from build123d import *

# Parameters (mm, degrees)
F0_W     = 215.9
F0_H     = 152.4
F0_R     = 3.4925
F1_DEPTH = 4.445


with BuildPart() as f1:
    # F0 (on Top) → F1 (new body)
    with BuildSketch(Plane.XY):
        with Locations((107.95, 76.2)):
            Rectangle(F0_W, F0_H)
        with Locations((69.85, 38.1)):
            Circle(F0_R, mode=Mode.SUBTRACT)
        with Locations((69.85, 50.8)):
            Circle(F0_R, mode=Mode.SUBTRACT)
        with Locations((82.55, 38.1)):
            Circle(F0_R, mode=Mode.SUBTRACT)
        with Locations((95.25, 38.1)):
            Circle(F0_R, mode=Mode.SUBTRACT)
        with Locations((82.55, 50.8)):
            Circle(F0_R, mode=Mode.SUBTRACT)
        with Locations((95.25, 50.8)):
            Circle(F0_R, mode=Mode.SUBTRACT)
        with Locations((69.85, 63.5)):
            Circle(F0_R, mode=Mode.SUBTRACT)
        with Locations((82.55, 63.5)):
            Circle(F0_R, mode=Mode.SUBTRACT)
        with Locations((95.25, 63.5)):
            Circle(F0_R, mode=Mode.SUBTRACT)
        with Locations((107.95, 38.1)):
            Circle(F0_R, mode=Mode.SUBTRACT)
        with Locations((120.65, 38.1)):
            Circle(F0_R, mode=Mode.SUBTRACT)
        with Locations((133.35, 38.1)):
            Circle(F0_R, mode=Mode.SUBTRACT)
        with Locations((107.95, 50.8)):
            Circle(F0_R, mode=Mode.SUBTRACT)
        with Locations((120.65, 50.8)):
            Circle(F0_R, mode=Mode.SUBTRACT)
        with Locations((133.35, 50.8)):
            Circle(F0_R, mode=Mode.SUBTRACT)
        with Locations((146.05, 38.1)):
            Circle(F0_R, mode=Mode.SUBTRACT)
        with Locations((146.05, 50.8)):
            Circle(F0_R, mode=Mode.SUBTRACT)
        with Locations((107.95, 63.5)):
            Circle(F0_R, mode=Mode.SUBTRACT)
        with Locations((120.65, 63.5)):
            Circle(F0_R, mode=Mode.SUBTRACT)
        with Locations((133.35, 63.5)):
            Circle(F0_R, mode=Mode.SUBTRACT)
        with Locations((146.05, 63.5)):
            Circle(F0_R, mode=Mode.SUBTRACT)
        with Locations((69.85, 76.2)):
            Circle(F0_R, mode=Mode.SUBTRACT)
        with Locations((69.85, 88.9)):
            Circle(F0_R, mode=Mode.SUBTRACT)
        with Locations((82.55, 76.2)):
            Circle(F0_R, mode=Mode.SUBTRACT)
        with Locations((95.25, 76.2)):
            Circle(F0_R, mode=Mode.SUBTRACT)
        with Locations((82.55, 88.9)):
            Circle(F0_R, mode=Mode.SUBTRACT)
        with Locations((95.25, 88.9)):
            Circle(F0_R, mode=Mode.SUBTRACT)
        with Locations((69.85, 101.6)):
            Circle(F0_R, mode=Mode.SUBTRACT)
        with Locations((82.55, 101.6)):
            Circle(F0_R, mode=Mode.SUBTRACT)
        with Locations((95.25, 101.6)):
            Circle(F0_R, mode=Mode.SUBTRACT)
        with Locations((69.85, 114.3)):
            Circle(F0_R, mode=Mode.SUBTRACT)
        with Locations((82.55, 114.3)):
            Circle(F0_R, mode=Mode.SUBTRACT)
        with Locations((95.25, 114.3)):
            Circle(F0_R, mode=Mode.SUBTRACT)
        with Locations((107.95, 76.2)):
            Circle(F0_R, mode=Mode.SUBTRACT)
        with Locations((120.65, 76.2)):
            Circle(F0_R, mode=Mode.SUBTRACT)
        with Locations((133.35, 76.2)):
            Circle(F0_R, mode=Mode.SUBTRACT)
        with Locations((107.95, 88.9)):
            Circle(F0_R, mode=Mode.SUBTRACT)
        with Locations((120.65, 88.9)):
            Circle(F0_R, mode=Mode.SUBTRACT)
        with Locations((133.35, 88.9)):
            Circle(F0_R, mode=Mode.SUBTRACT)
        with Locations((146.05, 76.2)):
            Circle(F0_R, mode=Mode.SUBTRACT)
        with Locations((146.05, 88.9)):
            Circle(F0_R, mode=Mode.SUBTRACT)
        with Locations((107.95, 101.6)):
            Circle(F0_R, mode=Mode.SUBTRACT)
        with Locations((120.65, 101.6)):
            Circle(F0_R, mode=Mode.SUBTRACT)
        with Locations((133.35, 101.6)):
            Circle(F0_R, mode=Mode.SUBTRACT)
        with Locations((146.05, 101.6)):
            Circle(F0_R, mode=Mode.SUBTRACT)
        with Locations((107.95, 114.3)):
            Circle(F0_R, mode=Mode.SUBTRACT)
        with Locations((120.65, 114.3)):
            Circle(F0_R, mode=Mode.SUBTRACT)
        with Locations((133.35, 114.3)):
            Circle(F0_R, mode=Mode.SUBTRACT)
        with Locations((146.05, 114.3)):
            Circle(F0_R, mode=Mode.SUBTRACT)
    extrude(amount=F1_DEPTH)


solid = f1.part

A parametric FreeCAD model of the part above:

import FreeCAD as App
import Part
import Sketcher

V = App.Vector
Q = App.Units.Quantity


def add_polygon(sketch, points):
    """Adds a closed chain of lines whose ends are joined by coincident constraints."""
    first, n = sketch.GeometryCount, len(points)
    for a, b in zip(points, points[1:] + points[:1]):
        sketch.addGeometry(Part.LineSegment(App.Vector(*a, 0), App.Vector(*b, 0)), False)
    for i in range(n):
        sketch.addConstraint(Sketcher.Constraint("Coincident", first + i, 2, first + (i + 1) % n, 1))

doc = App.newDocument("Part")
params = doc.addObject("Spreadsheet::Sheet", "Params")
for row, (alias, value) in enumerate([
    ("sketch1_height", "6 in"),
    ("sketch1_diameter", "0.275 in"),
    ("sketch1_width", "8.5 in"),
    ("pad1_length", "0.175 in"),
], start=1):
    params.set(f"A{row}", alias)
    params.set(f"B{row}", "=" + value)
    params.setAlias(f"B{row}", alias)

body = doc.addObject("PartDesign::Body", "Body")

sketch1 = doc.addObject("Sketcher::SketchObject", "Sketch")
body.addObject(sketch1)
sketch1.AttachmentSupport = (doc.XY_Plane, [""])
sketch1.MapMode = "FlatFace"
add_polygon(sketch1, [(0, 152.4), (0, 0), (215.9, 0), (215.9, 152.4)])
sketch1.addGeometry(Part.Circle(V(69.8, 38.1, 0), V(0, 0, 1), 3.5), False)
sketch1.addGeometry(Part.Circle(V(82.5, 38.1, 0), V(0, 0, 1), 3.5), False)
sketch1.addGeometry(Part.Circle(V(69.8, 50.8, 0), V(0, 0, 1), 3.5), False)
sketch1.addGeometry(Part.Circle(V(82.5, 50.8, 0), V(0, 0, 1), 3.5), False)
sketch1.addGeometry(Part.Circle(V(95.2, 38.1, 0), V(0, 0, 1), 3.5), False)
sketch1.addGeometry(Part.Circle(V(95.2, 50.8, 0), V(0, 0, 1), 3.5), False)
sketch1.addGeometry(Part.Circle(V(69.8, 63.5, 0), V(0, 0, 1), 3.5), False)
sketch1.addGeometry(Part.Circle(V(82.5, 63.5, 0), V(0, 0, 1), 3.5), False)
sketch1.addGeometry(Part.Circle(V(95.2, 63.5, 0), V(0, 0, 1), 3.5), False)
sketch1.addGeometry(Part.Circle(V(108, 38.1, 0), V(0, 0, 1), 3.5), False)
sketch1.addGeometry(Part.Circle(V(120.7, 38.1, 0), V(0, 0, 1), 3.5), False)
sketch1.addGeometry(Part.Circle(V(108, 50.8, 0), V(0, 0, 1), 3.5), False)
sketch1.addGeometry(Part.Circle(V(120.7, 50.8, 0), V(0, 0, 1), 3.5), False)
sketch1.addGeometry(Part.Circle(V(133.3, 38.1, 0), V(0, 0, 1), 3.5), False)
sketch1.addGeometry(Part.Circle(V(146.1, 38.1, 0), V(0, 0, 1), 3.5), False)
sketch1.addGeometry(Part.Circle(V(133.3, 50.8, 0), V(0, 0, 1), 3.5), False)
sketch1.addGeometry(Part.Circle(V(146.1, 50.8, 0), V(0, 0, 1), 3.5), False)
sketch1.addGeometry(Part.Circle(V(108, 63.5, 0), V(0, 0, 1), 3.5), False)
sketch1.addGeometry(Part.Circle(V(120.7, 63.5, 0), V(0, 0, 1), 3.5), False)
sketch1.addGeometry(Part.Circle(V(133.3, 63.5, 0), V(0, 0, 1), 3.5), False)
sketch1.addGeometry(Part.Circle(V(146.1, 63.5, 0), V(0, 0, 1), 3.5), False)
sketch1.addGeometry(Part.Circle(V(69.8, 76.2, 0), V(0, 0, 1), 3.5), False)
sketch1.addGeometry(Part.Circle(V(82.5, 76.2, 0), V(0, 0, 1), 3.5), False)
sketch1.addGeometry(Part.Circle(V(69.8, 88.9, 0), V(0, 0, 1), 3.5), False)
sketch1.addGeometry(Part.Circle(V(82.5, 88.9, 0), V(0, 0, 1), 3.5), False)
sketch1.addGeometry(Part.Circle(V(95.2, 76.2, 0), V(0, 0, 1), 3.5), False)
sketch1.addGeometry(Part.Circle(V(95.2, 88.9, 0), V(0, 0, 1), 3.5), False)
sketch1.addGeometry(Part.Circle(V(69.8, 101.6, 0), V(0, 0, 1), 3.5), False)
sketch1.addGeometry(Part.Circle(V(82.5, 101.6, 0), V(0, 0, 1), 3.5), False)
sketch1.addGeometry(Part.Circle(V(69.8, 114.3, 0), V(0, 0, 1), 3.5), False)
sketch1.addGeometry(Part.Circle(V(82.5, 114.3, 0), V(0, 0, 1), 3.5), False)
sketch1.addGeometry(Part.Circle(V(95.2, 101.6, 0), V(0, 0, 1), 3.5), False)
sketch1.addGeometry(Part.Circle(V(95.2, 114.3, 0), V(0, 0, 1), 3.5), False)
sketch1.addGeometry(Part.Circle(V(108, 76.2, 0), V(0, 0, 1), 3.5), False)
sketch1.addGeometry(Part.Circle(V(120.7, 76.2, 0), V(0, 0, 1), 3.5), False)
sketch1.addGeometry(Part.Circle(V(108, 88.9, 0), V(0, 0, 1), 3.5), False)
sketch1.addGeometry(Part.Circle(V(120.7, 88.9, 0), V(0, 0, 1), 3.5), False)
sketch1.addGeometry(Part.Circle(V(133.3, 76.2, 0), V(0, 0, 1), 3.5), False)
sketch1.addGeometry(Part.Circle(V(146.1, 76.2, 0), V(0, 0, 1), 3.5), False)
sketch1.addGeometry(Part.Circle(V(133.3, 88.9, 0), V(0, 0, 1), 3.5), False)
sketch1.addGeometry(Part.Circle(V(146.1, 88.9, 0), V(0, 0, 1), 3.5), False)
sketch1.addGeometry(Part.Circle(V(108, 101.6, 0), V(0, 0, 1), 3.5), False)
sketch1.addGeometry(Part.Circle(V(120.7, 101.6, 0), V(0, 0, 1), 3.5), False)
sketch1.addGeometry(Part.Circle(V(108, 114.3, 0), V(0, 0, 1), 3.5), False)
sketch1.addGeometry(Part.Circle(V(120.7, 114.3, 0), V(0, 0, 1), 3.5), False)
sketch1.addGeometry(Part.Circle(V(133.3, 101.6, 0), V(0, 0, 1), 3.5), False)
sketch1.addGeometry(Part.Circle(V(146.1, 101.6, 0), V(0, 0, 1), 3.5), False)
sketch1.addGeometry(Part.Circle(V(133.3, 114.3, 0), V(0, 0, 1), 3.5), False)
sketch1.addGeometry(Part.Circle(V(146.1, 114.3, 0), V(0, 0, 1), 3.5), False)
sketch1.addConstraint([
    Sketcher.Constraint("Vertical", 0),
    Sketcher.Constraint("Horizontal", 1),
    Sketcher.Constraint("Vertical", 2),
    Sketcher.Constraint("Horizontal", 3),
    Sketcher.Constraint("Coincident", 0, 2, -1, 1),
    Sketcher.Constraint("Equal", 4, 5),
    Sketcher.Constraint("Equal", 5, 6),
    Sketcher.Constraint("Equal", 6, 7),
    Sketcher.Constraint("Equal", 7, 8),
    Sketcher.Constraint("Equal", 8, 9),
    Sketcher.Constraint("Equal", 9, 10),
    Sketcher.Constraint("Equal", 10, 11),
    Sketcher.Constraint("Equal", 11, 12),
    Sketcher.Constraint("Equal", 12, 13),
    Sketcher.Constraint("Equal", 13, 14),
    Sketcher.Constraint("Equal", 14, 15),
    Sketcher.Constraint("Equal", 15, 16),
    Sketcher.Constraint("Equal", 16, 17),
    Sketcher.Constraint("Equal", 17, 18),
    Sketcher.Constraint("Equal", 18, 19),
    Sketcher.Constraint("Equal", 19, 20),
    Sketcher.Constraint("Equal", 20, 21),
    Sketcher.Constraint("Equal", 21, 22),
    Sketcher.Constraint("Equal", 22, 23),
    Sketcher.Constraint("Equal", 23, 24),
    Sketcher.Constraint("Equal", 24, 25),
    Sketcher.Constraint("Equal", 25, 26),
    Sketcher.Constraint("Equal", 26, 27),
    Sketcher.Constraint("Equal", 27, 28),
    Sketcher.Constraint("Equal", 28, 29),
    Sketcher.Constraint("Equal", 29, 30),
    Sketcher.Constraint("Equal", 30, 31),
    Sketcher.Constraint("Equal", 31, 32),
    Sketcher.Constraint("Equal", 32, 33),
    Sketcher.Constraint("Equal", 33, 34),
    Sketcher.Constraint("Equal", 34, 35),
    Sketcher.Constraint("Equal", 35, 36),
    Sketcher.Constraint("Equal", 36, 37),
    Sketcher.Constraint("Equal", 37, 38),
    Sketcher.Constraint("Equal", 38, 39),
    Sketcher.Constraint("Equal", 39, 40),
    Sketcher.Constraint("Equal", 40, 41),
    Sketcher.Constraint("Equal", 41, 42),
    Sketcher.Constraint("Equal", 42, 43),
    Sketcher.Constraint("Equal", 43, 44),
    Sketcher.Constraint("Equal", 44, 45),
    Sketcher.Constraint("Equal", 45, 46),
    Sketcher.Constraint("Equal", 46, 47),
    Sketcher.Constraint("Equal", 47, 48),
    Sketcher.Constraint("Equal", 48, 49),
    Sketcher.Constraint("Equal", 49, 50),
    Sketcher.Constraint("Equal", 50, 51),
    Sketcher.Constraint("Equal", 51, 52),
    Sketcher.Constraint("Horizontal", 4, 3, 5, 3),
    Sketcher.Constraint("Horizontal", 6, 3, 7, 3),
    Sketcher.Constraint("Horizontal", 5, 3, 8, 3),
    Sketcher.Constraint("Horizontal", 7, 3, 9, 3),
    Sketcher.Constraint("Horizontal", 10, 3, 11, 3),
    Sketcher.Constraint("Horizontal", 11, 3, 12, 3),
    Sketcher.Constraint("Horizontal", 8, 3, 13, 3),
    Sketcher.Constraint("Horizontal", 13, 3, 14, 3),
    Sketcher.Constraint("Horizontal", 9, 3, 15, 3),
    Sketcher.Constraint("Horizontal", 15, 3, 16, 3),
    Sketcher.Constraint("Horizontal", 14, 3, 17, 3),
    Sketcher.Constraint("Horizontal", 17, 3, 18, 3),
    Sketcher.Constraint("Horizontal", 16, 3, 19, 3),
    Sketcher.Constraint("Horizontal", 19, 3, 20, 3),
    Sketcher.Constraint("Horizontal", 12, 3, 21, 3),
    Sketcher.Constraint("Horizontal", 21, 3, 22, 3),
    Sketcher.Constraint("Horizontal", 22, 3, 23, 3),
    Sketcher.Constraint("Horizontal", 23, 3, 24, 3),
    Sketcher.Constraint("Horizontal", 25, 3, 26, 3),
    Sketcher.Constraint("Horizontal", 27, 3, 28, 3),
    Sketcher.Constraint("Horizontal", 26, 3, 29, 3),
    Sketcher.Constraint("Horizontal", 28, 3, 30, 3),
    Sketcher.Constraint("Horizontal", 31, 3, 32, 3),
    Sketcher.Constraint("Horizontal", 33, 3, 34, 3),
    Sketcher.Constraint("Horizontal", 32, 3, 35, 3),
    Sketcher.Constraint("Horizontal", 34, 3, 36, 3),
    Sketcher.Constraint("Horizontal", 29, 3, 37, 3),
    Sketcher.Constraint("Horizontal", 37, 3, 38, 3),
    Sketcher.Constraint("Horizontal", 30, 3, 39, 3),
    Sketcher.Constraint("Horizontal", 39, 3, 40, 3),
    Sketcher.Constraint("Horizontal", 38, 3, 41, 3),
    Sketcher.Constraint("Horizontal", 41, 3, 42, 3),
    Sketcher.Constraint("Horizontal", 40, 3, 43, 3),
    Sketcher.Constraint("Horizontal", 43, 3, 44, 3),
    Sketcher.Constraint("Horizontal", 35, 3, 45, 3),
    Sketcher.Constraint("Horizontal", 45, 3, 46, 3),
    Sketcher.Constraint("Horizontal", 36, 3, 47, 3),
    Sketcher.Constraint("Horizontal", 47, 3, 48, 3),
    Sketcher.Constraint("Horizontal", 46, 3, 49, 3),
    Sketcher.Constraint("Horizontal", 49, 3, 50, 3),
    Sketcher.Constraint("Horizontal", 48, 3, 51, 3),
    Sketcher.Constraint("Horizontal", 51, 3, 52, 3),
    Sketcher.Constraint("Vertical", 4, 3, 6, 3),
    Sketcher.Constraint("Vertical", 5, 3, 7, 3),
    Sketcher.Constraint("Vertical", 8, 3, 9, 3),
    Sketcher.Constraint("Vertical", 6, 3, 10, 3),
    Sketcher.Constraint("Vertical", 7, 3, 11, 3),
    Sketcher.Constraint("Vertical", 9, 3, 12, 3),
    Sketcher.Constraint("Vertical", 13, 3, 15, 3),
    Sketcher.Constraint("Vertical", 14, 3, 16, 3),
    Sketcher.Constraint("Vertical", 17, 3, 19, 3),
    Sketcher.Constraint("Vertical", 18, 3, 20, 3),
    Sketcher.Constraint("Vertical", 15, 3, 21, 3),
    Sketcher.Constraint("Vertical", 16, 3, 22, 3),
    Sketcher.Constraint("Vertical", 19, 3, 23, 3),
    Sketcher.Constraint("Vertical", 20, 3, 24, 3),
    Sketcher.Constraint("Vertical", 10, 3, 25, 3),
    Sketcher.Constraint("Vertical", 11, 3, 26, 3),
    Sketcher.Constraint("Vertical", 25, 3, 27, 3),
    Sketcher.Constraint("Vertical", 26, 3, 28, 3),
    Sketcher.Constraint("Vertical", 12, 3, 29, 3),
    Sketcher.Constraint("Vertical", 29, 3, 30, 3),
    Sketcher.Constraint("Vertical", 27, 3, 31, 3),
    Sketcher.Constraint("Vertical", 28, 3, 32, 3),
    Sketcher.Constraint("Vertical", 31, 3, 33, 3),
    Sketcher.Constraint("Vertical", 32, 3, 34, 3),
    Sketcher.Constraint("Vertical", 30, 3, 35, 3),
    Sketcher.Constraint("Vertical", 35, 3, 36, 3),
    Sketcher.Constraint("Vertical", 21, 3, 37, 3),
    Sketcher.Constraint("Vertical", 22, 3, 38, 3),
    Sketcher.Constraint("Vertical", 37, 3, 39, 3),
    Sketcher.Constraint("Vertical", 38, 3, 40, 3),
    Sketcher.Constraint("Vertical", 23, 3, 41, 3),
    Sketcher.Constraint("Vertical", 24, 3, 42, 3),
    Sketcher.Constraint("Vertical", 41, 3, 43, 3),
    Sketcher.Constraint("Vertical", 42, 3, 44, 3),
    Sketcher.Constraint("Vertical", 39, 3, 45, 3),
    Sketcher.Constraint("Vertical", 40, 3, 46, 3),
    Sketcher.Constraint("Vertical", 45, 3, 47, 3),
    Sketcher.Constraint("Vertical", 46, 3, 48, 3),
    Sketcher.Constraint("Vertical", 43, 3, 49, 3),
    Sketcher.Constraint("Vertical", 44, 3, 50, 3),
    Sketcher.Constraint("Vertical", 49, 3, 51, 3),
    Sketcher.Constraint("Vertical", 50, 3, 52, 3),
    Sketcher.Constraint("DistanceY", 0, 2, 0, 1, Q("6 in")),
    Sketcher.Constraint("Diameter", 4, Q("0.275 in")),
    Sketcher.Constraint("DistanceX", 1, 1, 1, 2, Q("8.5 in")),
    Sketcher.Constraint("DistanceY", -1, 1, 6, 3, Q("2 in")),
    Sketcher.Constraint("DistanceY", -1, 1, 25, 3, Q("3 in")),
    Sketcher.Constraint("DistanceY", -1, 1, 31, 3, Q("4 in")),
    Sketcher.Constraint("DistanceX", 4, 3, 8, 3, Q("1 in")),
    Sketcher.Constraint("DistanceY", 4, 3, 10, 3, Q("1 in")),
    Sketcher.Constraint("DistanceX", 5, 3, 13, 3, Q("1 in")),
    Sketcher.Constraint("DistanceX", 8, 3, 14, 3, Q("1 in")),
    Sketcher.Constraint("DistanceX", 13, 3, 17, 3, Q("1 in")),
    Sketcher.Constraint("DistanceX", 14, 3, 18, 3, Q("1 in")),
    Sketcher.Constraint("DistanceY", 10, 3, 27, 3, Q("1 in")),
    Sketcher.Constraint("DistanceY", 27, 3, 33, 3, Q("1 in")),
    Sketcher.Constraint("DistanceY", -1, 1, 4, 3, Q("1.5 in")),
    Sketcher.Constraint("DistanceX", 4, 3, 5, 3, Q("0.5 in")),
    Sketcher.Constraint("DistanceX", -1, 1, 4, 3, Q("2.75 in")),
])
sketch1.setExpression("Constraints[141]", "Params.sketch1_height")
sketch1.setExpression("Constraints[142]", "Params.sketch1_diameter")
sketch1.setExpression("Constraints[143]", "Params.sketch1_width")
pad1 = doc.addObject("PartDesign::Pad", "Pad")
body.addObject(pad1)
pad1.Profile = sketch1
pad1.setExpression("Length", "Params.pad1_length")

doc.recompute()
